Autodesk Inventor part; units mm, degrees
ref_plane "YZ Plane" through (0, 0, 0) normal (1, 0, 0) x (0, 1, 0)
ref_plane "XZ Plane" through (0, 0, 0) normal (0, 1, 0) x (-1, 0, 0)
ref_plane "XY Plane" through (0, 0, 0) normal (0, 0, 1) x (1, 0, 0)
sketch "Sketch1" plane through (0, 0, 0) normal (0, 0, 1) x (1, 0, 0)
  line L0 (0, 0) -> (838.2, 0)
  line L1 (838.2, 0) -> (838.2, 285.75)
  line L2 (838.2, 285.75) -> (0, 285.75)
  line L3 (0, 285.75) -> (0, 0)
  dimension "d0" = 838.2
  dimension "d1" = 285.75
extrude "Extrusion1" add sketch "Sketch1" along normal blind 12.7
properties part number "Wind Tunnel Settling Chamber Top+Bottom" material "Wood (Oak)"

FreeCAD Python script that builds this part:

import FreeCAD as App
import Part
import Sketcher
Q = App.Units.Quantity

doc = App.newDocument("Part")
body = doc.addObject("PartDesign::Body", "Body")

# Sketch on XY plane
sketch1 = doc.addObject("Sketcher::SketchObject", "Sketch")
body.addObject(sketch1)
sketch1.AttachmentSupport = (doc.XY_Plane, [""])
sketch1.MapMode = "FlatFace"
sketch1.addGeometry(Part.LineSegment(App.Vector(0, 285.75, 0), App.Vector(0, 0, 0)), False)
sketch1.addGeometry(Part.LineSegment(App.Vector(0, 0, 0), App.Vector(838.2, 0, 0)), False)
sketch1.addGeometry(Part.LineSegment(App.Vector(838.2, 0, 0), App.Vector(838.2, 285.75, 0)), False)
sketch1.addGeometry(Part.LineSegment(App.Vector(838.2, 285.75, 0), App.Vector(0, 285.75, 0)), False)
sketch1.addConstraint(Sketcher.Constraint("Coincident", 0, 2, 1, 1))
sketch1.addConstraint(Sketcher.Constraint("Coincident", 1, 2, 2, 1))
sketch1.addConstraint(Sketcher.Constraint("Coincident", 2, 2, 3, 1))
sketch1.addConstraint(Sketcher.Constraint("Coincident", 3, 2, 0, 1))
sketch1.addConstraint(Sketcher.Constraint("Vertical", 0))
sketch1.addConstraint(Sketcher.Constraint("Horizontal", 1))
sketch1.addConstraint(Sketcher.Constraint("Vertical", 2))
sketch1.addConstraint(Sketcher.Constraint("Horizontal", 3))
sketch1.addConstraint(Sketcher.Constraint("Coincident", 0, 2, -1, 1))
sketch1.addConstraint(Sketcher.Constraint("DistanceX", 1, 1, 1, 2, Q("33 in")))
sketch1.addConstraint(Sketcher.Constraint("DistanceY", 0, 2, 0, 1, Q("11.25 in")))
pad1 = doc.addObject("PartDesign::Pad", "Pad")
body.addObject(pad1)
pad1.Profile = sketch1
pad1.Length = Q("0.5 in")

doc.recompute()
